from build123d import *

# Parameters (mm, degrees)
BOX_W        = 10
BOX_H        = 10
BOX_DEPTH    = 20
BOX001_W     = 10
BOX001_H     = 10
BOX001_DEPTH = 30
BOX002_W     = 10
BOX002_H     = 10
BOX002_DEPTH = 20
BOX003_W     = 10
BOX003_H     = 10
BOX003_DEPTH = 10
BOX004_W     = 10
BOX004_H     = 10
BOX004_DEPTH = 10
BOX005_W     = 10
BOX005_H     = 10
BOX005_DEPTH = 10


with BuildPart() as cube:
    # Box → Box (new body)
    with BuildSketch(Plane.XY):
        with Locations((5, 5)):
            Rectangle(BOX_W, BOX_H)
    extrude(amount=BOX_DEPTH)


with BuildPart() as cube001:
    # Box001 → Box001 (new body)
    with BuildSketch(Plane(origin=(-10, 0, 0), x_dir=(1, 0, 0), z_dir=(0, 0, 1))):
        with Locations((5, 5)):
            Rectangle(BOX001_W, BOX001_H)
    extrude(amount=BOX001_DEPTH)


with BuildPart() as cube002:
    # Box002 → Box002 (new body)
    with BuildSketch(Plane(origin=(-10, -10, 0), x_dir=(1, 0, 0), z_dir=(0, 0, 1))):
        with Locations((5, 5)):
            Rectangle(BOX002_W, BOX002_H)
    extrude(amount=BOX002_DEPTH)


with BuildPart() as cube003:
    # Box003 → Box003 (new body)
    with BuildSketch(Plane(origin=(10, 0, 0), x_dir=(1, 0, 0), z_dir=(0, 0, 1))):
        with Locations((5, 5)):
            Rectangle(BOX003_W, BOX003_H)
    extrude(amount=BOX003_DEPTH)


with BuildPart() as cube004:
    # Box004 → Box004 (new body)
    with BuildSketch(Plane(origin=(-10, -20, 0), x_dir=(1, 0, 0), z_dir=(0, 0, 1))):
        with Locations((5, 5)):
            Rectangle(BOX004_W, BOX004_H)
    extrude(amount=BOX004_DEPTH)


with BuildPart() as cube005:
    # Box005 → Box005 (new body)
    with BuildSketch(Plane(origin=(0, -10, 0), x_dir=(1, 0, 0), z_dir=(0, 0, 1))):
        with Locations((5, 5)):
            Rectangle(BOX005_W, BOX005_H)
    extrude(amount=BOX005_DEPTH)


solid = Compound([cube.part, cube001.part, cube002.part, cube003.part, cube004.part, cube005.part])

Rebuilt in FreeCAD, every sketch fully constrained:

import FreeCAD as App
import Part
import Sketcher

V = App.Vector


def add_polygon(sketch, points):
    """Adds a closed chain of lines whose ends are joined by coincident constraints."""
    first, n = sketch.GeometryCount, len(points)
    for a, b in zip(points, points[1:] + points[:1]):
        sketch.addGeometry(Part.LineSegment(App.Vector(*a, 0), App.Vector(*b, 0)), False)
    for i in range(n):
        sketch.addConstraint(Sketcher.Constraint("Coincident", first + i, 2, first + (i + 1) % n, 1))

doc = App.newDocument("Part")
body = doc.addObject("PartDesign::Body", "Body")

sketch1 = doc.addObject("Sketcher::SketchObject", "Sketch")
body.addObject(sketch1)
sketch1.AttachmentSupport = (doc.XY_Plane, [""])
sketch1.MapMode = "FlatFace"
add_polygon(sketch1, [(0, 10), (0, 0), (10, 0), (10, 10)])
sketch1.addConstraint(Sketcher.Constraint("Vertical", 0))
sketch1.addConstraint(Sketcher.Constraint("Horizontal", 1))
sketch1.addConstraint(Sketcher.Constraint("Vertical", 2))
sketch1.addConstraint(Sketcher.Constraint("Horizontal", 3))
sketch1.addConstraint(Sketcher.Constraint("Coincident", 0, 2, -1, 1))
sketch1.addConstraint(Sketcher.Constraint("Equal", 3, 0))
sketch1.addConstraint(Sketcher.Constraint("DistanceX", 1, 1, 1, 2, 10.0))
pad1 = doc.addObject("PartDesign::Pad", "Pad")
body.addObject(pad1)
pad1.Profile = sketch1
pad1.Length = 20
body2 = doc.addObject("PartDesign::Body", "Body001")

sketch2 = doc.addObject("Sketcher::SketchObject", "Sketch001")
body2.addObject(sketch2)
sketch2.AttachmentSupport = (doc.getObject("XY_Plane001"), [""])
sketch2.MapMode = "FlatFace"
add_polygon(sketch2, [(-10, 10), (-10, 0), (0, 0), (0, 10)])
sketch2.addConstraint(Sketcher.Constraint("Vertical", 0))
sketch2.addConstraint(Sketcher.Constraint("Horizontal", 1))
sketch2.addConstraint(Sketcher.Constraint("Vertical", 2))
sketch2.addConstraint(Sketcher.Constraint("Horizontal", 3))
sketch2.addConstraint(Sketcher.Constraint("Coincident", 1, 2, -1, 1))
sketch2.addConstraint(Sketcher.Constraint("Equal", 3, 0))
sketch2.addConstraint(Sketcher.Constraint("DistanceX", 1, 1, 1, 2, 10.0))
pad2 = doc.addObject("PartDesign::Pad", "Pad001")
body2.addObject(pad2)
pad2.Profile = sketch2
pad2.Length = 30
body3 = doc.addObject("PartDesign::Body", "Body002")

sketch3 = doc.addObject("Sketcher::SketchObject", "Sketch002")
body3.addObject(sketch3)
sketch3.AttachmentSupport = (doc.getObject("XY_Plane002"), [""])
sketch3.MapMode = "FlatFace"
add_polygon(sketch3, [(-10, 0), (-10, -10), (0, -10), (0, 0)])
sketch3.addConstraint(Sketcher.Constraint("Vertical", 0))
sketch3.addConstraint(Sketcher.Constraint("Horizontal", 1))
sketch3.addConstraint(Sketcher.Constraint("Vertical", 2))
sketch3.addConstraint(Sketcher.Constraint("Horizontal", 3))
sketch3.addConstraint(Sketcher.Constraint("Coincident", 2, 2, -1, 1))
sketch3.addConstraint(Sketcher.Constraint("Equal", 3, 0))
sketch3.addConstraint(Sketcher.Constraint("DistanceX", 1, 1, 1, 2, 10.0))
pad3 = doc.addObject("PartDesign::Pad", "Pad002")
body3.addObject(pad3)
pad3.Profile = sketch3
pad3.Length = 20
body4 = doc.addObject("PartDesign::Body", "Body003")

sketch4 = doc.addObject("Sketcher::SketchObject", "Sketch003")
body4.addObject(sketch4)
sketch4.AttachmentSupport = (doc.getObject("XY_Plane003"), [""])
sketch4.MapMode = "FlatFace"
add_polygon(sketch4, [(10, 10), (10, 0), (20, 0), (20, 10)])
sketch4.addConstraint(Sketcher.Constraint("Vertical", 0))
sketch4.addConstraint(Sketcher.Constraint("Horizontal", 1))
sketch4.addConstraint(Sketcher.Constraint("Vertical", 2))
sketch4.addConstraint(Sketcher.Constraint("Horizontal", 3))
sketch4.addConstraint(Sketcher.Constraint("PointOnObject", 0, 2, -1))
sketch4.addConstraint(Sketcher.Constraint("Equal", 3, 0))
sketch4.addConstraint(Sketcher.Constraint("DistanceX", 1, 1, 1, 2, 10.0))
sketch4.addConstraint(Sketcher.Constraint("DistanceX", -1, 1, 0, 2, 10.0))
pad4 = doc.addObject("PartDesign::Pad", "Pad003")
body4.addObject(pad4)
pad4.Profile = sketch4
pad4.Length = 10
body5 = doc.addObject("PartDesign::Body", "Body004")

sketch5 = doc.addObject("Sketcher::SketchObject", "Sketch004")
body5.addObject(sketch5)
sketch5.AttachmentSupport = (doc.getObject("XY_Plane004"), [""])
sketch5.MapMode = "FlatFace"
add_polygon(sketch5, [(-10, -10), (-10, -20), (0, -20), (0, -10)])
sketch5.addConstraint(Sketcher.Constraint("Vertical", 0))
sketch5.addConstraint(Sketcher.Constraint("Horizontal", 1))
sketch5.addConstraint(Sketcher.Constraint("Vertical", 2))
sketch5.addConstraint(Sketcher.Constraint("Horizontal", 3))
sketch5.addConstraint(Sketcher.Constraint("PointOnObject", 1, 2, -2))
sketch5.addConstraint(Sketcher.Constraint("Equal", 3, 0))
sketch5.addConstraint(Sketcher.Constraint("DistanceX", 1, 1, 1, 2, 10.0))
sketch5.addConstraint(Sketcher.Constraint("DistanceY", 0, 2, -1, 1, 20.0))
pad5 = doc.addObject("PartDesign::Pad", "Pad004")
body5.addObject(pad5)
pad5.Profile = sketch5
pad5.Length = 10
body6 = doc.addObject("PartDesign::Body", "Body005")

sketch6 = doc.addObject("Sketcher::SketchObject", "Sketch005")
body6.addObject(sketch6)
sketch6.AttachmentSupport = (doc.getObject("XY_Plane005"), [""])
sketch6.MapMode = "FlatFace"
add_polygon(sketch6, [(0, 0), (0, -10), (10, -10), (10, 0)])
sketch6.addConstraint(Sketcher.Constraint("Vertical", 0))
sketch6.addConstraint(Sketcher.Constraint("Horizontal", 1))
sketch6.addConstraint(Sketcher.Constraint("Vertical", 2))
sketch6.addConstraint(Sketcher.Constraint("Horizontal", 3))
sketch6.addConstraint(Sketcher.Constraint("Coincident", 3, 2, -1, 1))
sketch6.addConstraint(Sketcher.Constraint("Equal", 3, 0))
sketch6.addConstraint(Sketcher.Constraint("DistanceX", 1, 1, 1, 2, 10.0))
pad6 = doc.addObject("PartDesign::Pad", "Pad005")
body6.addObject(pad6)
pad6.Profile = sketch6
pad6.Length = 10

doc.recompute()
